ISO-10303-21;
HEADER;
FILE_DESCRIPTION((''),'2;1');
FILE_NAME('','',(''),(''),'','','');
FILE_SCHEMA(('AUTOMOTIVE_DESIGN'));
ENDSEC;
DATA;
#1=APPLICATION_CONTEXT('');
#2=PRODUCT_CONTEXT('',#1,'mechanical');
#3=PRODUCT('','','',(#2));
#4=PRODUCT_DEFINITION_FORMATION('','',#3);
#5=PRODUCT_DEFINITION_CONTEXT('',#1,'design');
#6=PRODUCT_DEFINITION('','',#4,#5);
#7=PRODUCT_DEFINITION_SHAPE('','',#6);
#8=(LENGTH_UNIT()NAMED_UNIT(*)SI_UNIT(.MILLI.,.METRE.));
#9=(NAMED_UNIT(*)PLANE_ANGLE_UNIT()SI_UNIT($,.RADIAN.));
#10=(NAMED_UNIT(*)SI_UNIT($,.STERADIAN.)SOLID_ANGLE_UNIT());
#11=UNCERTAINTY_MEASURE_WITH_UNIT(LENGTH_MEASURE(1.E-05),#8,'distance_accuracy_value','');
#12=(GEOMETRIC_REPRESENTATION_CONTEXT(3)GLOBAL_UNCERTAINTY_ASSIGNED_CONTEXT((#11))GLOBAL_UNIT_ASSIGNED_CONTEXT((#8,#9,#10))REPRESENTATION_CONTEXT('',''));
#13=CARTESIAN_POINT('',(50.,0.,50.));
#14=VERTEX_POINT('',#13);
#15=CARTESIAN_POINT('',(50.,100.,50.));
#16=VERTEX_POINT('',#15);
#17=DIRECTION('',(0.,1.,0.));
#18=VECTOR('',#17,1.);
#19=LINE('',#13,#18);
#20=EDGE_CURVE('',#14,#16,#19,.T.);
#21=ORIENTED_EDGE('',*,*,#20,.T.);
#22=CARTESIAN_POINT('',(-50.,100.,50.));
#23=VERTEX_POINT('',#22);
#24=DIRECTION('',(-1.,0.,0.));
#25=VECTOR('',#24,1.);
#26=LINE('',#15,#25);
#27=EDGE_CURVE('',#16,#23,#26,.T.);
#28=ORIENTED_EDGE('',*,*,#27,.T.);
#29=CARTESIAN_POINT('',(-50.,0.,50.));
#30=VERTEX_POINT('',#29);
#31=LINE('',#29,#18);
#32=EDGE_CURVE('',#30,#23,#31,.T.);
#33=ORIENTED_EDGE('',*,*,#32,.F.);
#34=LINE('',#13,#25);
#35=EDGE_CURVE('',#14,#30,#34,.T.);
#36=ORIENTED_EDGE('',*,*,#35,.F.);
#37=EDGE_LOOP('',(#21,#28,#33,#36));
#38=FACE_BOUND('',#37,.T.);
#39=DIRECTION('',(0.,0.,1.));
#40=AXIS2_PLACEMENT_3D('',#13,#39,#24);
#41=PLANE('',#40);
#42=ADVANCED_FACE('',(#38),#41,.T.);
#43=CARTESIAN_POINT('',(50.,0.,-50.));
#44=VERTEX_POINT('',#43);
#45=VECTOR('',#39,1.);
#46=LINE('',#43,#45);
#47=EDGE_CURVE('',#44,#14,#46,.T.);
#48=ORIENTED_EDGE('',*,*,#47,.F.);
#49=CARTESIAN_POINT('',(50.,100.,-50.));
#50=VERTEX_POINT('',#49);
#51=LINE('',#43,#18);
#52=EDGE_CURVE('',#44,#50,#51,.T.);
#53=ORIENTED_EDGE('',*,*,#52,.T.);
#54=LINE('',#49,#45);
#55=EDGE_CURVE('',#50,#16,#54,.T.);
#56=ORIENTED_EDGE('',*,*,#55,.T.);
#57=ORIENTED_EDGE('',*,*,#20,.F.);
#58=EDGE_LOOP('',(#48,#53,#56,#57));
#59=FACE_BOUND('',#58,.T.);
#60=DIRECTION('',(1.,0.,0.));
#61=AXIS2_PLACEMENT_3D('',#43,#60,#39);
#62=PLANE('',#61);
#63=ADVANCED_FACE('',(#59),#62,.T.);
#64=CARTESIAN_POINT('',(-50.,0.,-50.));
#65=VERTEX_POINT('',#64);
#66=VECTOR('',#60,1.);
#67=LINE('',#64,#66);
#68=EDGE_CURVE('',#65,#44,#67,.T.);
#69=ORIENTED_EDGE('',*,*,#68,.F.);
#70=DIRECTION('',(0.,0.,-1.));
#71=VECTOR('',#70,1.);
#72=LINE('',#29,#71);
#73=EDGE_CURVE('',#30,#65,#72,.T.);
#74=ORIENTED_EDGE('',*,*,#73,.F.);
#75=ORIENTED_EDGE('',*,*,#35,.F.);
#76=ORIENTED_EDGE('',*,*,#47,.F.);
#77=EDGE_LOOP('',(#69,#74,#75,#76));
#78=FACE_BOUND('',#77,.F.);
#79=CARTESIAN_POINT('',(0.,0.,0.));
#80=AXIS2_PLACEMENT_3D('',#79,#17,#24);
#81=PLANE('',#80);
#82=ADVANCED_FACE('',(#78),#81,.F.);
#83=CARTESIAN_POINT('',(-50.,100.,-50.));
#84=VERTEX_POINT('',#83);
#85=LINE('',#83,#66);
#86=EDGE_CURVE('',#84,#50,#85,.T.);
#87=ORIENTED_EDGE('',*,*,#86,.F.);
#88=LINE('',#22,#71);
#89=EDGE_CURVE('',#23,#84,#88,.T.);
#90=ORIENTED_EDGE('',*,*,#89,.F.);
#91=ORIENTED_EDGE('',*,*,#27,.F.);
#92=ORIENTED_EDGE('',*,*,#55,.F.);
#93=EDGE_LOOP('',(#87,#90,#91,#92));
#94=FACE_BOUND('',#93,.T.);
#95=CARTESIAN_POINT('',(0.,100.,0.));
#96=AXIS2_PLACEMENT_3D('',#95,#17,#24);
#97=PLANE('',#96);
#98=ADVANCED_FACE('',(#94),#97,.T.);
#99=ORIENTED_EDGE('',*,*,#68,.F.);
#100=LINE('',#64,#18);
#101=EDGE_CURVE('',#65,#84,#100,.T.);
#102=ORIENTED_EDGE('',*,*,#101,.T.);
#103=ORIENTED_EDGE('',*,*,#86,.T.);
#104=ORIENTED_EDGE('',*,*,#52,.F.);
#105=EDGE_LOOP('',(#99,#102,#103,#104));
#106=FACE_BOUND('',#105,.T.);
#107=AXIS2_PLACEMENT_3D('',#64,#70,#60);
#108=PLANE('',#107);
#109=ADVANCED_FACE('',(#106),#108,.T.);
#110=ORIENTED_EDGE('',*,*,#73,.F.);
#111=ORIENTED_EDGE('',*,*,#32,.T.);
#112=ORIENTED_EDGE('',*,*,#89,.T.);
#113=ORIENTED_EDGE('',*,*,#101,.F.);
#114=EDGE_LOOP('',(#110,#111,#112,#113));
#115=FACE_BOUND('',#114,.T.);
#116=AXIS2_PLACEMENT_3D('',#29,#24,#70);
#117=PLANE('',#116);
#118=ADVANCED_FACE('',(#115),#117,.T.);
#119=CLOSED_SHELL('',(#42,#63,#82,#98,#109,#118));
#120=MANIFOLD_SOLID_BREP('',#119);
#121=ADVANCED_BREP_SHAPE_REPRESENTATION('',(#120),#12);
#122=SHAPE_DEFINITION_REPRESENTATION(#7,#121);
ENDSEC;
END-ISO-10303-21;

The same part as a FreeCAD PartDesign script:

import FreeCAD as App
import Part
import Sketcher

V = App.Vector
Q = App.Units.Quantity

doc = App.newDocument("Part")
body = doc.addObject("PartDesign::Body", "Body")

# Sketch on XZ plane
sketch1 = body.newObject("Sketcher::SketchObject", "Sketch")
sketch1.AttachmentSupport = (doc.getObject("XZ_Plane"), [""])
sketch1.MapMode = "FlatFace"
sketch1.addGeometry(Part.LineSegment(V(-50, 50, 0), V(50, 50, 0)), False)
sketch1.addGeometry(Part.LineSegment(V(50, 50, 0), V(50, -50, 0)), False)
sketch1.addGeometry(Part.LineSegment(V(50, -50, 0), V(-50, -50, 0)), False)
sketch1.addGeometry(Part.LineSegment(V(-50, -50, 0), V(-50, 50, 0)), False)
sketch1.addConstraint(Sketcher.Constraint("Coincident", 0, 2, 1, 1))
sketch1.addConstraint(Sketcher.Constraint("Coincident", 1, 2, 2, 1))
sketch1.addConstraint(Sketcher.Constraint("Coincident", 2, 2, 3, 1))
sketch1.addConstraint(Sketcher.Constraint("Coincident", 3, 2, 0, 1))
sketch1.addConstraint(Sketcher.Constraint("Horizontal", 0))
sketch1.addConstraint(Sketcher.Constraint("Vertical", 1))
sketch1.addConstraint(Sketcher.Constraint("Horizontal", 2))
sketch1.addConstraint(Sketcher.Constraint("Vertical", 3))
sketch1.addConstraint(Sketcher.Constraint("Symmetric", 0, 2, 2, 2, -1, 1))
sketch1.addConstraint(Sketcher.Constraint("Equal", 2, 1))
sketch1.addConstraint(Sketcher.Constraint("DistanceX", 0, 1, 0, 2, Q("3.937 in")))
pad1 = body.newObject("PartDesign::Pad", "Pad")
pad1.Profile = sketch1
pad1.Length = Q("3.9370079 in")
pad1.Reversed = True

doc.recompute()
